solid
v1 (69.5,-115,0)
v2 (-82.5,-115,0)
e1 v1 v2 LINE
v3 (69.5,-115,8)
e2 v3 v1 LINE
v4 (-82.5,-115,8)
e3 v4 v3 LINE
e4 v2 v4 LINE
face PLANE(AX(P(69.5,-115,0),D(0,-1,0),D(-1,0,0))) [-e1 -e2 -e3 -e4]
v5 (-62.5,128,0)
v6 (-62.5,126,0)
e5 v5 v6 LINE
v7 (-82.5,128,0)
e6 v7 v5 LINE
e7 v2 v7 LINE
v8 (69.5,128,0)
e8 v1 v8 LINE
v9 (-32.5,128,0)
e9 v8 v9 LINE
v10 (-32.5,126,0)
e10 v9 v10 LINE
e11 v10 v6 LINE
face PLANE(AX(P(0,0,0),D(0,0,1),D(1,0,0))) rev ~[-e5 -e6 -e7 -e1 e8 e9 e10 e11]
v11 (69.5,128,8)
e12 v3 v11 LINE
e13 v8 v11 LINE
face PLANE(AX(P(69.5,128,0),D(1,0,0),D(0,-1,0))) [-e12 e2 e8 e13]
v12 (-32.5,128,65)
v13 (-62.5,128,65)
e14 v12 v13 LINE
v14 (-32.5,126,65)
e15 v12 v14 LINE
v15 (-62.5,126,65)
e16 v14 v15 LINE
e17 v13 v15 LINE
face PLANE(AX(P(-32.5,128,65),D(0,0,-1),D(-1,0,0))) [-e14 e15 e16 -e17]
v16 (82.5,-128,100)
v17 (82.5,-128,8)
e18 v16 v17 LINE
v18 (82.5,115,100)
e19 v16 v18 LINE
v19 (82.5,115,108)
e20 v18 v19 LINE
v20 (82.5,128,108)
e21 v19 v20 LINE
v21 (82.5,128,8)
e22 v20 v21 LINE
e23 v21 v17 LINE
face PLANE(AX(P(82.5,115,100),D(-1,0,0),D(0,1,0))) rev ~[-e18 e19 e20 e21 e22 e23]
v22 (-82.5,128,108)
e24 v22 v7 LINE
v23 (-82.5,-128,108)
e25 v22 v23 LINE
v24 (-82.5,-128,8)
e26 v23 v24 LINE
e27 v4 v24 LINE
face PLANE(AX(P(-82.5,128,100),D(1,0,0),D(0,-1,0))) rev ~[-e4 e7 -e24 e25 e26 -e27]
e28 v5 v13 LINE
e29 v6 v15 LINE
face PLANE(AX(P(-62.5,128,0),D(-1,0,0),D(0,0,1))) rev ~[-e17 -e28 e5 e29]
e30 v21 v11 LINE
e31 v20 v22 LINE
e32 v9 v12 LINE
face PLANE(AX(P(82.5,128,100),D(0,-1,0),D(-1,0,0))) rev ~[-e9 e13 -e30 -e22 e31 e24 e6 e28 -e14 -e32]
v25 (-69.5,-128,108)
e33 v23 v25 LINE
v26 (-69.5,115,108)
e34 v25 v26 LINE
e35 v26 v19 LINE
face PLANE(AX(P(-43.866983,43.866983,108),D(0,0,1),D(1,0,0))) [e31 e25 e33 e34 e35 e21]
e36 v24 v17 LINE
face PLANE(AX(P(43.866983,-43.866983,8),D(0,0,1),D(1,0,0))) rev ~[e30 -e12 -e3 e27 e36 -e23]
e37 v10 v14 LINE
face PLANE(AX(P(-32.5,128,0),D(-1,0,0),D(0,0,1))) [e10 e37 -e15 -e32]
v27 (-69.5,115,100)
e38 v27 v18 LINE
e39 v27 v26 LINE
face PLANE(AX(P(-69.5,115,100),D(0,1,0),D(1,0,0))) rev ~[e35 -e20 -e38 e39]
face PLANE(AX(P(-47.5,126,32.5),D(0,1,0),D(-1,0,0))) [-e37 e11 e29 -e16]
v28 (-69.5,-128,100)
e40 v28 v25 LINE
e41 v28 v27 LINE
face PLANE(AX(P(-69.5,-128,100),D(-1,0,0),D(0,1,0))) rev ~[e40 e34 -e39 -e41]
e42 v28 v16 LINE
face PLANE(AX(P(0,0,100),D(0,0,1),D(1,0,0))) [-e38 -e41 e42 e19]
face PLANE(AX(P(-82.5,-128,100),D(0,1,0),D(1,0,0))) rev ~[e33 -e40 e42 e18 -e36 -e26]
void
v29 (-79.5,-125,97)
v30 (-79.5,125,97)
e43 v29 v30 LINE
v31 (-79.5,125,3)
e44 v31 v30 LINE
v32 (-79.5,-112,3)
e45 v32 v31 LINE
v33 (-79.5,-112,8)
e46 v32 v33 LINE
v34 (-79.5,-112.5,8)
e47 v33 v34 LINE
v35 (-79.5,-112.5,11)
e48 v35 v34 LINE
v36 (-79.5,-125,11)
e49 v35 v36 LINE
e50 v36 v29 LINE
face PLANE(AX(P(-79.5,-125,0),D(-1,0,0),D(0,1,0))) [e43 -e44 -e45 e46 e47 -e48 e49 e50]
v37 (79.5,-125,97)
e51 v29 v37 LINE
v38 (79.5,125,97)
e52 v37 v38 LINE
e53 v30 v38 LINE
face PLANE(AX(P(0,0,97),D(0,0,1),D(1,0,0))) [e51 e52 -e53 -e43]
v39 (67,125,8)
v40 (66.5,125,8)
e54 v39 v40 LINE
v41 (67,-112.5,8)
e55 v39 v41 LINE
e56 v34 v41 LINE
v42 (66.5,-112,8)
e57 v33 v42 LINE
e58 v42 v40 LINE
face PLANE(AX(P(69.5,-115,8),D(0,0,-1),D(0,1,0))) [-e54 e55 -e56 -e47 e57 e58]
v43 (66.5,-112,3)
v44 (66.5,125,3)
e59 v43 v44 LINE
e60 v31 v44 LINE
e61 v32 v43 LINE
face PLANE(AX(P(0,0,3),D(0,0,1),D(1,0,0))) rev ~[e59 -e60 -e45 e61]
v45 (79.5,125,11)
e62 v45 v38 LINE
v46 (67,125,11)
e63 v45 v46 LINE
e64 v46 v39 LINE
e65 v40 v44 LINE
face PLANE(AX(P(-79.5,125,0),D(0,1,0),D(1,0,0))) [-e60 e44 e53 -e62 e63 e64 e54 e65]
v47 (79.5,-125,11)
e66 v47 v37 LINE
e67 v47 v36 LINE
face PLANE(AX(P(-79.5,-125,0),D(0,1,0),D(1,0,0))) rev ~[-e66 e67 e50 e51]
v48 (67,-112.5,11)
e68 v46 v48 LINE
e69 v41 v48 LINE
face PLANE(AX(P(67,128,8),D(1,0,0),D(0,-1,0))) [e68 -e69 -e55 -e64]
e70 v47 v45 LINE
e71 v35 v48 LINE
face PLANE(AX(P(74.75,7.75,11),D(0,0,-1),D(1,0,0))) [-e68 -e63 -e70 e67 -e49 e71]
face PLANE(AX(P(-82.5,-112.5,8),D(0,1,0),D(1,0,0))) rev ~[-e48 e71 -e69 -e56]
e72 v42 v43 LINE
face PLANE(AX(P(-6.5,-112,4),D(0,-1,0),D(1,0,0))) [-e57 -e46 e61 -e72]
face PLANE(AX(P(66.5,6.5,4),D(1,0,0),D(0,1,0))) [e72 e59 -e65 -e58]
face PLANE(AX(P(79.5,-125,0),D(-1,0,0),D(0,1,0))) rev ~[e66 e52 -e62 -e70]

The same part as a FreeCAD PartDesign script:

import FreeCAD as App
import Part
import Sketcher
from FreeCAD import Vector
Q = App.Units.Quantity

doc = App.newDocument("Part")
body = doc.addObject("PartDesign::Body", "Body")

# Sketch on XY plane
sketch1 = body.newObject("Sketcher::SketchObject", "Sketch")
sketch1.AttachmentSupport = (doc.getObject("XY_Plane"), [""])
sketch1.MapMode = "FlatFace"
sketch1.addGeometry([
    Part.LineSegment(Vector(-82.5, 128, 0), Vector(-82.5, -128, 0)),  # 0
    Part.LineSegment(Vector(-82.5, -128, 0), Vector(82.5, -128, 0)),  # 1
    Part.LineSegment(Vector(82.5, -128, 0), Vector(82.5, 128, 0)),  # 2
    Part.LineSegment(Vector(82.5, 128, 0), Vector(-82.5, 128, 0)),  # 3
    Part.LineSegment(Vector(79.5, -125, 0), Vector(-79.5, -125, 0)),  # 4
    Part.LineSegment(Vector(-79.5, -125, 0), Vector(-79.5, 125, 0)),  # 5
    Part.LineSegment(Vector(-79.5, 125, 0), Vector(79.5, 125, 0)),  # 6
    Part.LineSegment(Vector(79.5, 125, 0), Vector(79.5, -125, 0)),  # 7
], False)
sketch1.addConstraint([
    Sketcher.Constraint("Coincident", 0, 2, 1, 1),
    Sketcher.Constraint("Coincident", 1, 2, 2, 1),
    Sketcher.Constraint("Coincident", 2, 2, 3, 1),
    Sketcher.Constraint("Coincident", 3, 2, 0, 1),
    Sketcher.Constraint("Coincident", 4, 2, 5, 1),
    Sketcher.Constraint("Coincident", 5, 2, 6, 1),
    Sketcher.Constraint("Coincident", 6, 2, 7, 1),
    Sketcher.Constraint("Coincident", 7, 2, 4, 1),
    Sketcher.Constraint("Vertical", 0),
    Sketcher.Constraint("Horizontal", 1),
    Sketcher.Constraint("Vertical", 2),
    Sketcher.Constraint("Horizontal", 3),
    Sketcher.Constraint("Horizontal", 4),
    Sketcher.Constraint("Vertical", 5),
    Sketcher.Constraint("Horizontal", 6),
    Sketcher.Constraint("Vertical", 7),
    Sketcher.Constraint("Symmetric", 0, 2, 2, 2, -1, 1),
    Sketcher.Constraint("Symmetric", 4, 2, 6, 2, -1, 1),
    Sketcher.Constraint("DistanceX", 1, 1, 1, 2, Q("165 mm")),
    Sketcher.Constraint("DistanceX", 4, 2, 4, 1, Q("159 mm")),
    Sketcher.Constraint("DistanceY", 0, 2, 0, 1, Q("256 mm")),
    Sketcher.Constraint("DistanceY", 5, 1, 5, 2, Q("250 mm")),
])
pad1 = body.newObject("PartDesign::Pad", "Pad")
pad1.Profile = sketch1
pad1.Length = 100

# Sketch on XY plane
sketch2 = body.newObject("Sketcher::SketchObject", "Sketch001")
sketch2.AttachmentSupport = (doc.getObject("XY_Plane"), [""])
sketch2.MapMode = "FlatFace"
sketch2.addGeometry([
    Part.LineSegment(Vector(-82.5, 128, 0), Vector(-82.5, -128, 0)),
    Part.LineSegment(Vector(-82.5, -128, 0), Vector(82.5, -128, 0)),
    Part.LineSegment(Vector(82.5, -128, 0), Vector(82.5, 128, 0)),
    Part.LineSegment(Vector(82.5, 128, 0), Vector(-82.5, 128, 0)),
], False)
sketch2.addConstraint([
    Sketcher.Constraint("Coincident", 0, 2, 1, 1),
    Sketcher.Constraint("Coincident", 1, 2, 2, 1),
    Sketcher.Constraint("Coincident", 2, 2, 3, 1),
    Sketcher.Constraint("Coincident", 3, 2, 0, 1),
    Sketcher.Constraint("Vertical", 0),
    Sketcher.Constraint("Horizontal", 1),
    Sketcher.Constraint("Vertical", 2),
    Sketcher.Constraint("Horizontal", 3),
    Sketcher.Constraint("Symmetric", 0, 2, 2, 2, -1, 1),
    Sketcher.Constraint("DistanceX", 1, 1, 1, 2, Q("165 mm")),
    Sketcher.Constraint("DistanceY", 0, 2, 0, 1, Q("256 mm")),
])
pad2 = body.newObject("PartDesign::Pad", "Pad001")
pad2.Profile = sketch2
pad2.Length = 3

# Sketch on XY plane
sketch3 = body.newObject("Sketcher::SketchObject", "Sketch002")
sketch3.AttachmentSupport = (doc.getObject("XY_Plane"), [""])
sketch3.MapMode = "FlatFace"
sketch3.AttachmentOffset = App.Placement(Vector(0, 0, 100), App.Rotation())
sketch3.addGeometry([
    Part.LineSegment(Vector(-82.5, 128, 0), Vector(-82.5, -128, 0)),
    Part.LineSegment(Vector(-82.5, -128, 0), Vector(82.5, -128, 0)),
    Part.LineSegment(Vector(82.5, -128, 0), Vector(82.5, 128, 0)),
    Part.LineSegment(Vector(82.5, 128, 0), Vector(-82.5, 128, 0)),
], False)
sketch3.addConstraint([
    Sketcher.Constraint("Coincident", 0, 2, 1, 1),
    Sketcher.Constraint("Coincident", 1, 2, 2, 1),
    Sketcher.Constraint("Coincident", 2, 2, 3, 1),
    Sketcher.Constraint("Coincident", 3, 2, 0, 1),
    Sketcher.Constraint("Vertical", 0),
    Sketcher.Constraint("Horizontal", 1),
    Sketcher.Constraint("Vertical", 2),
    Sketcher.Constraint("Horizontal", 3),
    Sketcher.Constraint("Symmetric", 0, 2, 2, 2, -1, 1),
    Sketcher.Constraint("DistanceX", 1, 1, 1, 2, Q("165 mm")),
    Sketcher.Constraint("DistanceY", 0, 2, 0, 1, Q("256 mm")),
])
pad3 = body.newObject("PartDesign::Pad", "Pad002")
pad3.Profile = sketch3
pad3.Length = 3
pad3.Reversed = True

# Sketch on XY plane
sketch4 = body.newObject("Sketcher::SketchObject", "Sketch003")
sketch4.AttachmentSupport = (doc.getObject("XY_Plane"), [""])
sketch4.MapMode = "FlatFace"
sketch4.AttachmentOffset = App.Placement(Vector(0, 0, 100), App.Rotation())
sketch4.addGeometry([
    Part.LineSegment(Vector(-82.5, 128, 0), Vector(-82.5, -128, 0)),  # 0
    Part.LineSegment(Vector(-82.5, -128, 0), Vector(-69.5, -128, 0)),  # 1
    Part.LineSegment(Vector(-69.5, -128, 0), Vector(-69.5, 115, 0)),  # 2
    Part.LineSegment(Vector(-69.5, 115, 0), Vector(82.5, 115, 0)),  # 3
    Part.LineSegment(Vector(82.5, 115, 0), Vector(82.5, 128, 0)),  # 4
    Part.LineSegment(Vector(82.5, 128, 0), Vector(-82.5, 128, 0)),  # 5
], False)
sketch4.addConstraint([
    Sketcher.Constraint("Coincident", 0, 2, 1, 1),
    Sketcher.Constraint("Coincident", 1, 2, 2, 1),
    Sketcher.Constraint("Coincident", 2, 2, 3, 1),
    Sketcher.Constraint("Coincident", 3, 2, 4, 1),
    Sketcher.Constraint("Coincident", 4, 2, 5, 1),
    Sketcher.Constraint("Coincident", 5, 2, 0, 1),
    Sketcher.Constraint("Vertical", 0),
    Sketcher.Constraint("Horizontal", 1),
    Sketcher.Constraint("Vertical", 2),
    Sketcher.Constraint("Horizontal", 3),
    Sketcher.Constraint("Vertical", 4),
    Sketcher.Constraint("Horizontal", 5),
    Sketcher.Constraint("Symmetric", 0, 2, 4, 2, -1, 1),
    Sketcher.Constraint("Equal", 1, 4),
    Sketcher.Constraint("DistanceX", 1, 1, 1, 2, Q("13 mm")),
    Sketcher.Constraint("DistanceX", 3, 1, 3, 2, Q("152 mm")),
    Sketcher.Constraint("DistanceY", 0, 2, 0, 1, Q("256 mm")),
])
pad4 = body.newObject("PartDesign::Pad", "Pad003")
pad4.Profile = sketch4
pad4.Length = 8

# Sketch on XY plane
sketch5 = body.newObject("Sketcher::SketchObject", "Sketch004")
sketch5.AttachmentSupport = (doc.getObject("XY_Plane"), [""])
sketch5.MapMode = "FlatFace"
sketch5.addGeometry([
    Part.LineSegment(Vector(-82.5, -128, 0), Vector(82.5, -128, 0)),  # 0
    Part.LineSegment(Vector(82.5, -128, 0), Vector(82.5, 128, 0)),  # 1
    Part.LineSegment(Vector(82.5, 128, 0), Vector(69.5, 128, 0)),  # 2
    Part.LineSegment(Vector(69.5, 128, 0), Vector(69.5, -115, 0)),  # 3
    Part.LineSegment(Vector(69.5, -115, 0), Vector(-82.5, -115, 0)),  # 4
    Part.LineSegment(Vector(-82.5, -115, 0), Vector(-82.5, -128, 0)),  # 5
], False)
sketch5.addConstraint([
    Sketcher.Constraint("Coincident", 0, 2, 1, 1),
    Sketcher.Constraint("Coincident", 1, 2, 2, 1),
    Sketcher.Constraint("Coincident", 2, 2, 3, 1),
    Sketcher.Constraint("Coincident", 3, 2, 4, 1),
    Sketcher.Constraint("Coincident", 4, 2, 5, 1),
    Sketcher.Constraint("Coincident", 5, 2, 0, 1),
    Sketcher.Constraint("Horizontal", 0),
    Sketcher.Constraint("Vertical", 1),
    Sketcher.Constraint("Horizontal", 2),
    Sketcher.Constraint("Vertical", 3),
    Sketcher.Constraint("Horizontal", 4),
    Sketcher.Constraint("Vertical", 5),
    Sketcher.Constraint("Symmetric", 1, 2, 5, 2, -1, 1),
    Sketcher.Constraint("Equal", 2, 5),
    Sketcher.Constraint("DistanceX", 0, 1, 0, 2, Q("165 mm")),
    Sketcher.Constraint("DistanceX", 2, 2, 2, 1, Q("13 mm")),
    Sketcher.Constraint("DistanceY", 1, 1, 1, 2, Q("256 mm")),
])
pocket1 = body.newObject("PartDesign::Pocket", "Pocket")
pocket1.Profile = sketch5
pocket1.Length = 8
pocket1.Reversed = True

# Sketch on XZ plane
sketch6 = body.newObject("Sketcher::SketchObject", "Sketch005")
sketch6.AttachmentSupport = (doc.getObject("XZ_Plane"), [""])
sketch6.MapMode = "FlatFace"
sketch6.AttachmentOffset = App.Placement(Vector(0, 0, -128), App.Rotation())
sketch6.addGeometry([
    Part.LineSegment(Vector(-32.5, 65, 0), Vector(-32.5, 0, 0)),
    Part.LineSegment(Vector(-32.5, 0, 0), Vector(-62.5, 0, 0)),
    Part.LineSegment(Vector(-62.5, 0, 0), Vector(-62.5, 65, 0)),
    Part.LineSegment(Vector(-62.5, 65, 0), Vector(-32.5, 65, 0)),
], False)
sketch6.addConstraint([
    Sketcher.Constraint("Coincident", 0, 2, 1, 1),
    Sketcher.Constraint("Coincident", 1, 2, 2, 1),
    Sketcher.Constraint("Coincident", 2, 2, 3, 1),
    Sketcher.Constraint("Coincident", 3, 2, 0, 1),
    Sketcher.Constraint("Vertical", 0),
    Sketcher.Constraint("Horizontal", 1),
    Sketcher.Constraint("Vertical", 2),
    Sketcher.Constraint("Horizontal", 3),
    Sketcher.Constraint("PointOnObject", 0, 2, -1),
    Sketcher.Constraint("DistanceX", 1, 2, 1, 1, Q("30 mm")),
    Sketcher.Constraint("DistanceY", 0, 2, 0, 1, Q("65 mm")),
    Sketcher.Constraint("DistanceX", 0, 2, -1, 1, Q("32.5 mm")),
])
pocket2 = body.newObject("PartDesign::Pocket", "Pocket001")
pocket2.Profile = sketch6
pocket2.Length = 2
pocket2.Reversed = True

# Sketch on YZ plane
sketch7 = body.newObject("Sketcher::SketchObject", "Sketch006")
sketch7.AttachmentSupport = (doc.getObject("YZ_Plane"), [""])
sketch7.MapMode = "FlatFace"
sketch7.AttachmentOffset = App.Placement(Vector(0, 0, 69.5), App.Rotation())
sketch7.addGeometry([
    Part.LineSegment(Vector(-115, 8, 0), Vector(-115, 0, 0)),
    Part.LineSegment(Vector(-115, 0, 0), Vector(128, 0, 0)),
    Part.LineSegment(Vector(128, 0, 0), Vector(128, 8, 0)),
    Part.LineSegment(Vector(128, 8, 0), Vector(-115, 8, 0)),
], False)
sketch7.addConstraint([
    Sketcher.Constraint("Coincident", 0, 2, 1, 1),
    Sketcher.Constraint("Coincident", 1, 2, 2, 1),
    Sketcher.Constraint("Coincident", 2, 2, 3, 1),
    Sketcher.Constraint("Coincident", 3, 2, 0, 1),
    Sketcher.Constraint("Vertical", 0),
    Sketcher.Constraint("Horizontal", 1),
    Sketcher.Constraint("Vertical", 2),
    Sketcher.Constraint("Horizontal", 3),
    Sketcher.Constraint("PointOnObject", 0, 2, -1),
    Sketcher.Constraint("DistanceX", 1, 1, 1, 2, Q("243 mm")),
    Sketcher.Constraint("DistanceY", 0, 2, 0, 1, Q("8 mm")),
    Sketcher.Constraint("DistanceX", 0, 2, -1, 1, Q("115 mm")),
])
pad5 = body.newObject("PartDesign::Pad", "Pad004")
pad5.Profile = sketch7
pad5.Length = 3
pad5.Reversed = True

# Sketch on XZ plane
sketch8 = body.newObject("Sketcher::SketchObject", "Sketch007")
sketch8.AttachmentSupport = (doc.getObject("XZ_Plane"), [""])
sketch8.MapMode = "FlatFace"
sketch8.AttachmentOffset = App.Placement(Vector(0, 0, 115), App.Rotation())
sketch8.addGeometry([
    Part.LineSegment(Vector(-82.5, 8, 0), Vector(-82.5, 0, 0)),
    Part.LineSegment(Vector(-82.5, 0, 0), Vector(69.5, 0, 0)),
    Part.LineSegment(Vector(69.5, 0, 0), Vector(69.5, 8, 0)),
    Part.LineSegment(Vector(69.5, 8, 0), Vector(-82.5, 8, 0)),
], False)
sketch8.addConstraint([
    Sketcher.Constraint("Coincident", 0, 2, 1, 1),
    Sketcher.Constraint("Coincident", 1, 2, 2, 1),
    Sketcher.Constraint("Coincident", 2, 2, 3, 1),
    Sketcher.Constraint("Coincident", 3, 2, 0, 1),
    Sketcher.Constraint("Vertical", 0),
    Sketcher.Constraint("Horizontal", 1),
    Sketcher.Constraint("Vertical", 2),
    Sketcher.Constraint("Horizontal", 3),
    Sketcher.Constraint("PointOnObject", 0, 2, -1),
    Sketcher.Constraint("DistanceX", 1, 1, 1, 2, Q("152 mm")),
    Sketcher.Constraint("DistanceY", 0, 2, 0, 1, Q("8 mm")),
    Sketcher.Constraint("DistanceX", 0, 2, -1, 1, Q("82.5 mm")),
])
pad6 = body.newObject("PartDesign::Pad", "Pad005")
pad6.Profile = sketch8
pad6.Length = 3
pad6.Reversed = True

# Sketch on XY plane
sketch9 = body.newObject("Sketcher::SketchObject", "Sketch008")
sketch9.AttachmentSupport = (doc.getObject("XY_Plane"), [""])
sketch9.MapMode = "FlatFace"
sketch9.AttachmentOffset = App.Placement(Vector(0, 0, 8), App.Rotation())
sketch9.addGeometry([
    Part.LineSegment(Vector(-82.5, -128, 0), Vector(-82.5, -112.5, 0)),
    Part.LineSegment(Vector(-82.5, -112.5, 0), Vector(82.5, -112.5, 0)),
    Part.LineSegment(Vector(82.5, -112.5, 0), Vector(82.5, -128, 0)),
    Part.LineSegment(Vector(82.5, -128, 0), Vector(-82.5, -128, 0)),
], False)
sketch9.addConstraint([
    Sketcher.Constraint("Coincident", 0, 2, 1, 1),
    Sketcher.Constraint("Coincident", 1, 2, 2, 1),
    Sketcher.Constraint("Coincident", 2, 2, 3, 1),
    Sketcher.Constraint("Coincident", 3, 2, 0, 1),
    Sketcher.Constraint("Vertical", 0),
    Sketcher.Constraint("Horizontal", 1),
    Sketcher.Constraint("Vertical", 2),
    Sketcher.Constraint("Horizontal", 3),
    Sketcher.Constraint("DistanceX", 1, 1, 1, 2, Q("165 mm")),
    Sketcher.Constraint("DistanceY", 0, 1, 0, 2, Q("15.5 mm")),
    Sketcher.Constraint("DistanceY", 2, 2, -1, 1, Q("128 mm")),
    Sketcher.Constraint("DistanceX", 0, 2, -1, 1, Q("82.5 mm")),
])
pad7 = body.newObject("PartDesign::Pad", "Pad006")
pad7.Profile = sketch9
pad7.Length = 3

# Sketch on XY plane
sketch10 = body.newObject("Sketcher::SketchObject", "Sketch009")
sketch10.AttachmentSupport = (doc.getObject("XY_Plane"), [""])
sketch10.MapMode = "FlatFace"
sketch10.AttachmentOffset = App.Placement(Vector(0, 0, 8), App.Rotation())
sketch10.addGeometry([
    Part.LineSegment(Vector(67, -112.5, 0), Vector(67, 128, 0)),
    Part.LineSegment(Vector(67, 128, 0), Vector(82.5, 128, 0)),
    Part.LineSegment(Vector(82.5, 128, 0), Vector(82.5, -112.5, 0)),
    Part.LineSegment(Vector(82.5, -112.5, 0), Vector(67, -112.5, 0)),
], False)
sketch10.addConstraint([
    Sketcher.Constraint("Coincident", 0, 2, 1, 1),
    Sketcher.Constraint("Coincident", 1, 2, 2, 1),
    Sketcher.Constraint("Coincident", 2, 2, 3, 1),
    Sketcher.Constraint("Coincident", 3, 2, 0, 1),
    Sketcher.Constraint("Vertical", 0),
    Sketcher.Constraint("Horizontal", 1),
    Sketcher.Constraint("Vertical", 2),
    Sketcher.Constraint("Horizontal", 3),
    Sketcher.Constraint("DistanceX", 1, 1, 1, 2, Q("15.5 mm")),
    Sketcher.Constraint("DistanceY", 0, 1, 0, 2, Q("240.5 mm")),
    Sketcher.Constraint("DistanceX", -1, 1, 0, 2, Q("67 mm")),
    Sketcher.Constraint("DistanceY", -1, 1, 0, 2, Q("128 mm")),
])
pad8 = body.newObject("PartDesign::Pad", "Pad007")
pad8.Profile = sketch10
pad8.Length = 3

doc.recompute()
